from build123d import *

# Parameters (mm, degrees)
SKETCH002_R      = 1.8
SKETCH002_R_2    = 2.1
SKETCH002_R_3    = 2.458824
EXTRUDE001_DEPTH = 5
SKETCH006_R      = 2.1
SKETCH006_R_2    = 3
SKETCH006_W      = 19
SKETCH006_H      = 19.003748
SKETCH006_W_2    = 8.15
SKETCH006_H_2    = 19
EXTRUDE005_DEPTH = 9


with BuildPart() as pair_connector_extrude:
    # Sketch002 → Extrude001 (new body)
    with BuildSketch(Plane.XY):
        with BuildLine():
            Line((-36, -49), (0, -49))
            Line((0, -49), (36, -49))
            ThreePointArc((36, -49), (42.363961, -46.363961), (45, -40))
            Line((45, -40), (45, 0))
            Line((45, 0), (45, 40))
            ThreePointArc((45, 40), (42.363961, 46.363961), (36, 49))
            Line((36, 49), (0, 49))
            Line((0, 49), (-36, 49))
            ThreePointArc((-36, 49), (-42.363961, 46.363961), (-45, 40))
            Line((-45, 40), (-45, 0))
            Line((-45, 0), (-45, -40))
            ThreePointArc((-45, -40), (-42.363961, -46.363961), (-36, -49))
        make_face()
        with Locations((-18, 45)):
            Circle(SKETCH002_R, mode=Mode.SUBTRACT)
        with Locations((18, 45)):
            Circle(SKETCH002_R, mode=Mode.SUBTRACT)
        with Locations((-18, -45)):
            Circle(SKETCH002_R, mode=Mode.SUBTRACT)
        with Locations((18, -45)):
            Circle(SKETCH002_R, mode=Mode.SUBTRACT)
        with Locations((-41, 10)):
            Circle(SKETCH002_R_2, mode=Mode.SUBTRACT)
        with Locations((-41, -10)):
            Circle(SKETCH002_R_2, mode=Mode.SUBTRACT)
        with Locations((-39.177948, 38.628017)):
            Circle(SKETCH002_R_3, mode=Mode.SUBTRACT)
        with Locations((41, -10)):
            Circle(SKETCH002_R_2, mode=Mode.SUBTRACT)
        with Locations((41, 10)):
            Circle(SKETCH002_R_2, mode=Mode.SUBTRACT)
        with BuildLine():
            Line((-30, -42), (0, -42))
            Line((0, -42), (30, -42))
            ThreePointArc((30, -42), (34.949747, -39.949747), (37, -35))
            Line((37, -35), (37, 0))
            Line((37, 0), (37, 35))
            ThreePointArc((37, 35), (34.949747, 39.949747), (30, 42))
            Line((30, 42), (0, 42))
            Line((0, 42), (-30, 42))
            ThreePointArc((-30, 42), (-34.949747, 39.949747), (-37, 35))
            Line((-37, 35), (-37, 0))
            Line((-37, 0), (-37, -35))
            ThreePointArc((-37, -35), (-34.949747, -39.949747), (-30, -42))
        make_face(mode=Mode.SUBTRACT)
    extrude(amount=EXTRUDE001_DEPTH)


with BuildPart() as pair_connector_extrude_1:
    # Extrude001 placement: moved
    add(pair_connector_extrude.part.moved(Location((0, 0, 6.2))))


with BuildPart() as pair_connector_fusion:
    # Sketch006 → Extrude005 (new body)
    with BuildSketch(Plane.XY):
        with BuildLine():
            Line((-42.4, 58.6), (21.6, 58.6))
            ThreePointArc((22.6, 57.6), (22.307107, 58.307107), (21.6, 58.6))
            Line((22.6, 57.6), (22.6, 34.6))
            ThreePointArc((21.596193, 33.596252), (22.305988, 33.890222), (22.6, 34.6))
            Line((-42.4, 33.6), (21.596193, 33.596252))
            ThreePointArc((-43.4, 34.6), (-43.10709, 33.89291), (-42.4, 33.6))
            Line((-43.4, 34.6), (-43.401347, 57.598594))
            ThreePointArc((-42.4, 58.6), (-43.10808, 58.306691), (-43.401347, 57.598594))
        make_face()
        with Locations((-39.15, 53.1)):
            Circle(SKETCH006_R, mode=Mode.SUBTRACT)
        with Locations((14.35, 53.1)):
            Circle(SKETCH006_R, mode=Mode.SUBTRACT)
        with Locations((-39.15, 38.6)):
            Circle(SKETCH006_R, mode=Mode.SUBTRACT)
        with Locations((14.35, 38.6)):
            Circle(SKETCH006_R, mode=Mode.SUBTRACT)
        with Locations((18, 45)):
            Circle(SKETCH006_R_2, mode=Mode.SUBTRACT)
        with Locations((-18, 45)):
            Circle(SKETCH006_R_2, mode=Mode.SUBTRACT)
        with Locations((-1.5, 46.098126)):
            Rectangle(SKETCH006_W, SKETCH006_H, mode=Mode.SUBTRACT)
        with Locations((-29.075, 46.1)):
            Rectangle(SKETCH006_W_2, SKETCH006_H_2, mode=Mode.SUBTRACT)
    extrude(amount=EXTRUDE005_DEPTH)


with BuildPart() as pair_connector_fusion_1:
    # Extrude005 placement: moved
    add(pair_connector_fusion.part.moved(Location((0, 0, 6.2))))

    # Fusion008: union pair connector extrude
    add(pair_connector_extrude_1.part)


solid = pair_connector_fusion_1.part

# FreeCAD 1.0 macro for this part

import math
import FreeCAD as App
import Part
import Sketcher

doc = App.newDocument("Part")
body = doc.addObject("PartDesign::Body", "Body")

# Sketch on XY plane
sketch1 = doc.addObject("Sketcher::SketchObject", "Sketch")
body.addObject(sketch1)
sketch1.AttachmentSupport = (doc.XY_Plane, [""])
sketch1.MapMode = "FlatFace"
sketch1.addGeometry([
    Part.LineSegment(App.Vector(-36, -49, 0), App.Vector(36, -49, 0)),  # 0
    Part.ArcOfCircle(Part.Circle(App.Vector(36, -40, 0), App.Vector(0, 0, 1), 9), math.radians(-89.999999), math.radians(-0.000001)),  # 1
    Part.LineSegment(App.Vector(45, -40, 0), App.Vector(45, 40, 0)),  # 2
    Part.ArcOfCircle(Part.Circle(App.Vector(36, 40, 0), App.Vector(0, 0, 1), 9), math.radians(0.000001), math.radians(89.999999)),  # 3
    Part.LineSegment(App.Vector(36, 49, 0), App.Vector(-36, 49, 0)),  # 4
    Part.ArcOfCircle(Part.Circle(App.Vector(-36, 40, 0), App.Vector(0, 0, 1), 9), math.radians(90.000001), math.radians(179.999999)),  # 5
    Part.LineSegment(App.Vector(-45, 40, 0), App.Vector(-45, -40, 0)),  # 6
    Part.ArcOfCircle(Part.Circle(App.Vector(-36, -40, 0), App.Vector(0, 0, 1), 9), math.radians(-179.999999), math.radians(-90.000001)),  # 7
    Part.Circle(App.Vector(-18, -45, 0), App.Vector(0, 0, 1), 1.8),  # 8
    Part.Circle(App.Vector(-41, -10, 0), App.Vector(0, 0, 1), 2.1),  # 9
    Part.Circle(App.Vector(18, -45, 0), App.Vector(0, 0, 1), 1.8),  # 10
    Part.Circle(App.Vector(41, -10, 0), App.Vector(0, 0, 1), 2.1),  # 11
    Part.Circle(App.Vector(-41, 10, 0), App.Vector(0, 0, 1), 2.1),  # 12
    Part.Circle(App.Vector(-39.177948, 38.628017, 0), App.Vector(0, 0, 1), 2.458824),  # 13
    Part.Circle(App.Vector(-18, 45, 0), App.Vector(0, 0, 1), 1.8),  # 14
    Part.LineSegment(App.Vector(30, -42, 0), App.Vector(-30, -42, 0)),  # 15
    Part.ArcOfCircle(Part.Circle(App.Vector(-29.999998, -34.999998, 0), App.Vector(0, 0, 1), 7.000002), math.radians(-179.999987), math.radians(-90.000013)),  # 16
    Part.LineSegment(App.Vector(-37, -35, 0), App.Vector(-37, 35, 0)),  # 17
    Part.ArcOfCircle(Part.Circle(App.Vector(-29.999998, 34.999998, 0), App.Vector(0, 0, 1), 7.000002), math.radians(90.000013), math.radians(179.999987)),  # 18
    Part.LineSegment(App.Vector(-30, 42, 0), App.Vector(30, 42, 0)),  # 19
    Part.ArcOfCircle(Part.Circle(App.Vector(29.999998, 34.999998, 0), App.Vector(0, 0, 1), 7.000002), math.radians(0.000013), math.radians(89.999987)),  # 20
    Part.LineSegment(App.Vector(37, 35, 0), App.Vector(37, -35, 0)),  # 21
    Part.ArcOfCircle(Part.Circle(App.Vector(29.999998, -34.999998, 0), App.Vector(0, 0, 1), 7.000002), math.radians(-89.999987), math.radians(-0.000013)),  # 22
    Part.Circle(App.Vector(41, 10, 0), App.Vector(0, 0, 1), 2.1),  # 23
    Part.Circle(App.Vector(18, 45, 0), App.Vector(0, 0, 1), 1.8),  # 24
], False)
sketch1.addConstraint([
    Sketcher.Constraint("Tangent", 0, 2, 1, 1),
    Sketcher.Constraint("Tangent", 1, 2, 2, 1),
    Sketcher.Constraint("Tangent", 2, 2, 3, 1),
    Sketcher.Constraint("Tangent", 3, 2, 4, 1),
    Sketcher.Constraint("Tangent", 4, 2, 5, 1),
    Sketcher.Constraint("Tangent", 5, 2, 6, 1),
    Sketcher.Constraint("Tangent", 6, 2, 7, 1),
    Sketcher.Constraint("Tangent", 7, 2, 0, 1),
    Sketcher.Constraint("Tangent", 15, 2, 16, 2),
    Sketcher.Constraint("Tangent", 16, 1, 17, 1),
    Sketcher.Constraint("Tangent", 17, 2, 18, 2),
    Sketcher.Constraint("Tangent", 18, 1, 19, 1),
    Sketcher.Constraint("Tangent", 19, 2, 20, 2),
    Sketcher.Constraint("Tangent", 20, 1, 21, 1),
    Sketcher.Constraint("Tangent", 21, 2, 22, 2),
    Sketcher.Constraint("Tangent", 22, 1, 15, 1),
    Sketcher.Constraint("Horizontal", 0),
    Sketcher.Constraint("Vertical", 2),
    Sketcher.Constraint("Horizontal", 4),
    Sketcher.Constraint("Vertical", 6),
    Sketcher.Constraint("Horizontal", 15),
    Sketcher.Constraint("Vertical", 17),
    Sketcher.Constraint("Horizontal", 19),
    Sketcher.Constraint("Vertical", 21),
    Sketcher.Constraint("Equal", 1, 3),
    Sketcher.Constraint("Equal", 3, 5),
    Sketcher.Constraint("Equal", 5, 7),
    Sketcher.Constraint("Equal", 8, 10),
    Sketcher.Constraint("Equal", 9, 11),
    Sketcher.Constraint("Equal", 11, 12),
    Sketcher.Constraint("Equal", 10, 14),
    Sketcher.Constraint("Equal", 16, 18),
    Sketcher.Constraint("Equal", 18, 20),
    Sketcher.Constraint("Equal", 20, 22),
    Sketcher.Constraint("Equal", 12, 23),
    Sketcher.Constraint("Equal", 14, 24),
    Sketcher.Constraint("Symmetric", 1, 3, 5, 3, -1, 1),
    Sketcher.Constraint("Symmetric", 11, 3, 12, 3, -1, 1),
    Sketcher.Constraint("Symmetric", 10, 3, 14, 3, -1, 1),
    Sketcher.Constraint("Symmetric", 16, 3, 20, 3, -1, 1),
    Sketcher.Constraint("Symmetric", 9, 3, 23, 3, -1, 1),
    Sketcher.Constraint("Symmetric", 8, 3, 24, 3, -1, 1),
    Sketcher.Constraint("Symmetric", 8, 3, 10, 3, -2),
    Sketcher.Constraint("Symmetric", 9, 3, 11, 3, -2),
    Sketcher.Constraint("Radius", 1, 9.0),
    Sketcher.Constraint("Radius", 16, 7.000002),
    Sketcher.Constraint("Diameter", 8, 3.6),
    Sketcher.Constraint("Diameter", 9, 4.2),
    Sketcher.Constraint("DistanceX", 0, 1, 0, 2, 72.0),
    Sketcher.Constraint("DistanceX", 15, 2, 15, 1, 60.0),
    Sketcher.Constraint("DistanceY", 2, 1, 2, 2, 80.0),
    Sketcher.Constraint("DistanceY", 17, 1, 17, 2, 70.0),
    Sketcher.Constraint("DistanceX", 8, 3, -1, 1, 18.0),
    Sketcher.Constraint("DistanceY", 8, 3, -1, 1, 45.0),
    Sketcher.Constraint("DistanceX", 9, 3, -1, 1, 41.0),
    Sketcher.Constraint("DistanceY", 9, 3, -1, 1, 10.0),
    Sketcher.Constraint("Diameter", 13, 4.917648),
    Sketcher.Constraint("DistanceX", 13, 3, 5, 3, 3.177948),
    Sketcher.Constraint("DistanceY", 18, 3, 13, 3, 3.628019),
])
pad1 = doc.addObject("PartDesign::Pad", "Pad")
body.addObject(pad1)
pad1.Profile = sketch1
pad1.Length = 5
body2 = doc.addObject("PartDesign::Body", "Body001")
doc.recompute()

body.Placement = App.Placement(App.Vector(0, 0, 6.2), App.Rotation(App.Vector(0, 0, 1), 0))
boolean = doc.addObject("PartDesign::Boolean", "Boolean")
body2.addObject(boolean)
boolean.Type = "Fuse"
boolean.addObjects([body])
body3 = doc.addObject("PartDesign::Body", "Body002")

# Sketch on XY plane
sketch2 = doc.addObject("Sketcher::SketchObject", "Sketch001")
body3.addObject(sketch2)
sketch2.AttachmentSupport = (doc.getObject("XY_Plane002"), [""])
sketch2.MapMode = "FlatFace"
sketch2.addGeometry([
    Part.LineSegment(App.Vector(21.6, 58.6, 0), App.Vector(-42.4, 58.6, 0)),  # 0
    Part.ArcOfCircle(Part.Circle(App.Vector(-42.399999, 57.598652, 0), App.Vector(0, 0, 1), 1.001348), math.radians(90.00005), math.radians(180.003326)),  # 1
    Part.LineSegment(App.Vector(-43.401347, 57.598594, 0), App.Vector(-43.4, 34.6, 0)),  # 2
    Part.ArcOfCircle(Part.Circle(App.Vector(-42.399943, 34.600057, 0), App.Vector(0, 0, 1), 1.000057), math.radians(-179.996717), math.radians(-90.003283)),  # 3
    Part.LineSegment(App.Vector(-42.4, 33.6, 0), App.Vector(21.596193, 33.596252, 0)),  # 4
    Part.ArcOfCircle(Part.Circle(App.Vector(21.596252, 34.6, 0), App.Vector(0, 0, 1), 1.003748), math.radians(-90.003364), math.radians(-0.000003)),  # 5
    Part.LineSegment(App.Vector(22.6, 34.6, 0), App.Vector(22.6, 57.6, 0)),  # 6
    Part.ArcOfCircle(Part.Circle(App.Vector(21.600001, 57.600001, 0), App.Vector(0, 0, 1), 0.999999), math.radians(-0.000043), math.radians(90.000043)),  # 7
    Part.Circle(App.Vector(14.35, 38.6, 0), App.Vector(0, 0, 1), 2.1),  # 8
    Part.Circle(App.Vector(18, 45, 0), App.Vector(0, 0, 1), 3),  # 9
    Part.Circle(App.Vector(-39.15, 38.6, 0), App.Vector(0, 0, 1), 2.1),  # 10
    Part.Circle(App.Vector(-18, 45, 0), App.Vector(0, 0, 1), 3),  # 11
    Part.LineSegment(App.Vector(-11, 36.596252, 0), App.Vector(-11, 55.6, 0)),  # 12
    Part.LineSegment(App.Vector(-11, 55.6, 0), App.Vector(8, 55.6, 0)),  # 13
    Part.LineSegment(App.Vector(8, 55.6, 0), App.Vector(8, 36.596252, 0)),  # 14
    Part.LineSegment(App.Vector(8, 36.596252, 0), App.Vector(-11, 36.596252, 0)),  # 15
    Part.Circle(App.Vector(14.35, 53.1, 0), App.Vector(0, 0, 1), 2.1),  # 16
    Part.LineSegment(App.Vector(-33.15, 36.6, 0), App.Vector(-33.15, 55.6, 0)),  # 17
    Part.LineSegment(App.Vector(-33.15, 55.6, 0), App.Vector(-25, 55.6, 0)),  # 18
    Part.LineSegment(App.Vector(-25, 55.6, 0), App.Vector(-25, 36.6, 0)),  # 19
    Part.LineSegment(App.Vector(-25, 36.6, 0), App.Vector(-33.15, 36.6, 0)),  # 20
    Part.Circle(App.Vector(-39.15, 53.1, 0), App.Vector(0, 0, 1), 2.1),  # 21
], False)
sketch2.addConstraint([
    Sketcher.Constraint("Coincident", 0, 2, 1, 1),
    Sketcher.Constraint("Coincident", 1, 2, 2, 1),
    Sketcher.Constraint("Coincident", 2, 2, 3, 1),
    Sketcher.Constraint("Coincident", 3, 2, 4, 1),
    Sketcher.Constraint("Coincident", 4, 2, 5, 1),
    Sketcher.Constraint("Coincident", 5, 2, 6, 1),
    Sketcher.Constraint("Coincident", 6, 2, 7, 1),
    Sketcher.Constraint("Coincident", 7, 2, 0, 1),
    Sketcher.Constraint("Coincident", 12, 2, 13, 1),
    Sketcher.Constraint("Coincident", 13, 2, 14, 1),
    Sketcher.Constraint("Coincident", 14, 2, 15, 1),
    Sketcher.Constraint("Coincident", 15, 2, 12, 1),
    Sketcher.Constraint("Coincident", 17, 2, 18, 1),
    Sketcher.Constraint("Coincident", 18, 2, 19, 1),
    Sketcher.Constraint("Coincident", 19, 2, 20, 1),
    Sketcher.Constraint("Coincident", 20, 2, 17, 1),
    Sketcher.Constraint("Horizontal", 0),
    Sketcher.Constraint("Vertical", 6),
    Sketcher.Constraint("Vertical", 12),
    Sketcher.Constraint("Horizontal", 13),
    Sketcher.Constraint("Vertical", 14),
    Sketcher.Constraint("Horizontal", 15),
    Sketcher.Constraint("Vertical", 17),
    Sketcher.Constraint("Horizontal", 18),
    Sketcher.Constraint("Vertical", 19),
    Sketcher.Constraint("Horizontal", 20),
    Sketcher.Constraint("Diameter", 9, 6.0),
    Sketcher.Constraint("Diameter", 11, 6.0),
    Sketcher.Constraint("Radius", 7, 0.999999),
    Sketcher.Constraint("Diameter", 8, 4.2),
    Sketcher.Constraint("Diameter", 10, 4.2),
    Sketcher.Constraint("Diameter", 16, 4.2),
    Sketcher.Constraint("Diameter", 21, 4.2),
    Sketcher.Constraint("DistanceX", 0, 2, 0, 1, 64.0),
    Sketcher.Constraint("DistanceX", 13, 1, 13, 2, 19.0),
    Sketcher.Constraint("DistanceY", 6, 1, 6, 2, 23.0),
    Sketcher.Constraint("DistanceY", 17, 1, 17, 2, 19.0),
    Sketcher.Constraint("DistanceX", -1, 1, 9, 3, 18.0),
    Sketcher.Constraint("DistanceY", -1, 1, 9, 3, 45.0),
    Sketcher.Constraint("DistanceX", 11, 3, -1, 1, 18.0),
    Sketcher.Constraint("DistanceY", -1, 1, 11, 3, 45.0),
    Sketcher.Constraint("DistanceX", 12, 2, -1, 1, 11.0),
    Sketcher.Constraint("DistanceX", 18, 2, -1, 1, 25.0),
    Sketcher.Constraint("DistanceY", 5, 3, 7, 3, 23.000001),
    Sketcher.Constraint("DistanceX", 1, 3, 7, 3, 64.0),
    Sketcher.Constraint("DistanceY", 5, 3, 8, 3, 4.0),
    Sketcher.Constraint("DistanceY", 5, 3, 10, 3, 4.0),
    Sketcher.Constraint("DistanceY", 2, 2, 10, 3, 4.0),
    Sketcher.Constraint("DistanceX", 2, 2, 1, 3, 1.000001),
    Sketcher.Constraint("DistanceX", 2, 2, 3, 2, 1.0),
    Sketcher.Constraint("DistanceY", 3, 2, 2, 2, 1.0),
    Sketcher.Constraint("DistanceY", 5, 2, 8, 3, 4.0),
    Sketcher.Constraint("DistanceX", 7, 2, 6, 2, 1.0),
    Sketcher.Constraint("DistanceY", 8, 3, 12, 2, 17.0),
    Sketcher.Constraint("DistanceY", 4, 2, 14, 2, 3.0),
    Sketcher.Constraint("DistanceX", 21, 3, 17, 2, 6.0),
    Sketcher.Constraint("DistanceY", 17, 2, 0, 2, 3.0),
    Sketcher.Constraint("DistanceX", 10, 3, 17, 2, 6.0),
    Sketcher.Constraint("DistanceX", 18, 1, 18, 2, 8.15),
    Sketcher.Constraint("DistanceX", 1, 3, -1, 1, 42.399999),
    Sketcher.Constraint("DistanceY", -1, 1, 5, 3, 34.6),
    Sketcher.Constraint("DistanceY", -1, 1, 16, 3, 53.1),
    Sketcher.Constraint("DistanceY", -1, 1, 21, 3, 53.1),
    Sketcher.Constraint("DistanceX", 10, 3, 8, 3, 53.5),
    Sketcher.Constraint("DistanceX", 21, 3, 16, 3, 53.5),
    Sketcher.Constraint("Radius", 5, 1.003748),
    Sketcher.Constraint("Radius", 1, 1.001348),
    Sketcher.Constraint("Radius", 3, 1.000057),
    Sketcher.Constraint("Distance", 2, 22.998594),
    Sketcher.Constraint("Distance", 4, 63.996193),
])
pad2 = doc.addObject("PartDesign::Pad", "Pad001")
body3.addObject(pad2)
pad2.Profile = sketch2
pad2.Length = 9
body4 = doc.addObject("PartDesign::Body", "Body003")
doc.recompute()

body3.Placement = App.Placement(App.Vector(0, 0, 6.2), App.Rotation(App.Vector(0, 0, 1), 0))
boolean2 = doc.addObject("PartDesign::Boolean", "Boolean001")
body4.addObject(boolean2)
boolean2.Type = "Fuse"
boolean2.addObjects([body3])
doc.recompute()

boolean3 = doc.addObject("PartDesign::Boolean", "Boolean002")
body4.addObject(boolean3)
boolean3.Type = "Fuse"
boolean3.addObjects([body2])

doc.recompute()
